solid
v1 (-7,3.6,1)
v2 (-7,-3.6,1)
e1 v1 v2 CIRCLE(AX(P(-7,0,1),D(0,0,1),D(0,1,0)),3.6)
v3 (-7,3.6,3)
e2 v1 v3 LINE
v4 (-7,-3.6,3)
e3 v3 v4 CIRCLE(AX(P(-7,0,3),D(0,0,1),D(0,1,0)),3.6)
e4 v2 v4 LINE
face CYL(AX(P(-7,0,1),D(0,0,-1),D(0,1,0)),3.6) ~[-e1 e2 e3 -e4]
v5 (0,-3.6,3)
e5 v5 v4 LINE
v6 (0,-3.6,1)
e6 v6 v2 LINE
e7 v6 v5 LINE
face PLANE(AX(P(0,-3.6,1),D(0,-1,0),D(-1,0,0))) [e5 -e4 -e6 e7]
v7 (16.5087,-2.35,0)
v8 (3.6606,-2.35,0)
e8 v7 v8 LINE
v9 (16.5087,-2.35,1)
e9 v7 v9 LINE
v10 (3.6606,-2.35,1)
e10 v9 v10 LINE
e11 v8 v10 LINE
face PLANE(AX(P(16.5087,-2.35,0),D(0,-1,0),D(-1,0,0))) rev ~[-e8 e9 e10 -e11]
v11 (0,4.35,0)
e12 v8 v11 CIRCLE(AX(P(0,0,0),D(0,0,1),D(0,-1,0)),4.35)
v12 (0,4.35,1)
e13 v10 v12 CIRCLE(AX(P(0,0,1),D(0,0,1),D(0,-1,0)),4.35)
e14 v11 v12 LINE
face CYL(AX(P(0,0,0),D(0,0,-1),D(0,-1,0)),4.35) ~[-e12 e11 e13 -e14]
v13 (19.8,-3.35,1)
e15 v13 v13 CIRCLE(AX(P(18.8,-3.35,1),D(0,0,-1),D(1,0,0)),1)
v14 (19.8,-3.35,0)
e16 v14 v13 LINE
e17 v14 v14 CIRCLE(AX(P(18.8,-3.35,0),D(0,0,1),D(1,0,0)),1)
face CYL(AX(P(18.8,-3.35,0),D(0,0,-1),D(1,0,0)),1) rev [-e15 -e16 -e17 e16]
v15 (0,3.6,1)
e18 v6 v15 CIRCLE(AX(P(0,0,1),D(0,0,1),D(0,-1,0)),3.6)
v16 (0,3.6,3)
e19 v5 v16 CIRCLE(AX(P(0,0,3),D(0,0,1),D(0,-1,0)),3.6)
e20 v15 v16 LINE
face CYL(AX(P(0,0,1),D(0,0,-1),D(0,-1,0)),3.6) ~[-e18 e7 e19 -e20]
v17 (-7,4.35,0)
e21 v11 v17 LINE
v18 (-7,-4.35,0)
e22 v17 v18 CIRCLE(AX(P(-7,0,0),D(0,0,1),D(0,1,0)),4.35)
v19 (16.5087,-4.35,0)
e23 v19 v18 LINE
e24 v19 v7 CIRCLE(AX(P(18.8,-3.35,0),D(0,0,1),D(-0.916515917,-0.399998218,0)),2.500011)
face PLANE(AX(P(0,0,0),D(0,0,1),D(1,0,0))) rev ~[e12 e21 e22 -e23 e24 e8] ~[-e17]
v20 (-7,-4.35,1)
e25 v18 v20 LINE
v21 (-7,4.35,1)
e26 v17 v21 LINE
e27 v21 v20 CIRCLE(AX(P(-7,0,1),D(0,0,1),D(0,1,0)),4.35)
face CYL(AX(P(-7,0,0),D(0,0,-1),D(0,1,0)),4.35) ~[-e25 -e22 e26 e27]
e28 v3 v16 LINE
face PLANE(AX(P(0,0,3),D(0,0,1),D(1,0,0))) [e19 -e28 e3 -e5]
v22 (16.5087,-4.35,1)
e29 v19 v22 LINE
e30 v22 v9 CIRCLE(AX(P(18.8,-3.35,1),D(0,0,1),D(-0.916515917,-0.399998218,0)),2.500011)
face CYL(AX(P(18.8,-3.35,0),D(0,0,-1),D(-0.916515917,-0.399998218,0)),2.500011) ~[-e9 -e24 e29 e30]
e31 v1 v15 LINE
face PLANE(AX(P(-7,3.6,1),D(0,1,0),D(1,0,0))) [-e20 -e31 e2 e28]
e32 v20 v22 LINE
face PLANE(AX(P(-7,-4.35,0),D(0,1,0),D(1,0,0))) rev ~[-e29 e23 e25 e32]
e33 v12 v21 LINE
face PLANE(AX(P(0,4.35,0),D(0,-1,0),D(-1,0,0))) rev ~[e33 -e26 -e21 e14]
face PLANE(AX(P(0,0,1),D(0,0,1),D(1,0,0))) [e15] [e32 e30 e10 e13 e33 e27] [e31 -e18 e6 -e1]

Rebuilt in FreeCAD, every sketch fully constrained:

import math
import FreeCAD as App
import Part
import Sketcher
Q = App.Units.Quantity

doc = App.newDocument("Part")
body = doc.addObject("PartDesign::Body", "Body")

# Sketch on XY plane
sketch1 = body.newObject("Sketcher::SketchObject", "Sketch")
sketch1.AttachmentSupport = (doc.getObject("XY_Plane"), [""])
sketch1.MapMode = "FlatFace"
sketch1.addGeometry([
    Part.ArcOfCircle(Part.Circle(App.Vector(0, 0, 0), App.Vector(0, 0, 1), 4.3), math.radians(-33), math.radians(90)),  # 0
    Part.LineSegment(App.Vector(0, 4.3, 0), App.Vector(-7, 4.3, 0)),  # 1
    Part.ArcOfCircle(Part.Circle(App.Vector(-7, 0, 0), App.Vector(0, 0, 1), 4.3), math.radians(90), math.radians(270)),  # 2
    Part.LineSegment(App.Vector(-7, -4.3, 0), App.Vector(16.5, -4.3, 0)),  # 3
    Part.ArcOfCircle(Part.Circle(App.Vector(18.8, -3.4, 0), App.Vector(0, 0, 1), 2.5), math.radians(-156), math.radians(156)),  # 4
    Part.LineSegment(App.Vector(16.5, -2.4, 0), App.Vector(3.7, -2.4, 0)),  # 5
    Part.Circle(App.Vector(18.8, -3.4, 0), App.Vector(0, 0, 1), 1),  # 6
], False)
sketch1.addConstraint([
    Sketcher.Constraint("Tangent", 0, 2, 1, 1),
    Sketcher.Constraint("Tangent", 1, 2, 2, 1),
    Sketcher.Constraint("Tangent", 2, 2, 3, 1),
    Sketcher.Constraint("Coincident", 3, 2, 4, 1),
    Sketcher.Constraint("Coincident", 4, 2, 5, 1),
    Sketcher.Constraint("Coincident", 5, 2, 0, 1),
    Sketcher.Constraint("Horizontal", 1),
    Sketcher.Constraint("Horizontal", 3),
    Sketcher.Constraint("Horizontal", 5),
    Sketcher.Constraint("Coincident", 0, 3, -1, 1),
    Sketcher.Constraint("Coincident", 6, 3, 4, 3),
    Sketcher.Constraint("Equal", 0, 2),
    Sketcher.Constraint("Vertical", 3, 2, 4, 2),
    Sketcher.Constraint("Diameter", 6, Q("2 mm")),
    Sketcher.Constraint("Radius", 4, Q("2.5 mm")),
    Sketcher.Constraint("DistanceX", 1, 2, 1, 1, Q("7 mm")),
    Sketcher.Constraint("Radius", 0, Q("4.35 mm")),
    Sketcher.Constraint("DistanceY", 2, 2, 4, 3, Q("1 mm")),
    Sketcher.Constraint("DistanceX", -1, 1, 4, 3, Q("18.8 mm")),
])
pad1 = body.newObject("PartDesign::Pad", "Pad")
pad1.Profile = sketch1
pad1.Length = 1

# Sketch on XY plane
sketch2 = body.newObject("Sketcher::SketchObject", "Sketch001")
sketch2.AttachmentSupport = (doc.getObject("XY_Plane"), [""])
sketch2.MapMode = "FlatFace"
sketch2.AttachmentOffset = App.Placement(App.Vector(0, 0, 1), App.Rotation())
sketch2.addGeometry([
    Part.LineSegment(App.Vector(0, 3.6, 0), App.Vector(-7, 3.6, 0)),
    Part.ArcOfCircle(Part.Circle(App.Vector(-7, 0, 0), App.Vector(0, 0, 1), 3.6), math.radians(90), math.radians(270)),
    Part.LineSegment(App.Vector(-7, -3.6, 0), App.Vector(0, -3.6, 0)),
    Part.ArcOfCircle(Part.Circle(App.Vector(0, 0, 0), App.Vector(0, 0, 1), 3.6), math.radians(-90), math.radians(90)),
], False)
sketch2.addConstraint([
    Sketcher.Constraint("Tangent", 0, 2, 1, 1),
    Sketcher.Constraint("Tangent", 1, 2, 2, 1),
    Sketcher.Constraint("Tangent", 2, 2, 3, 1),
    Sketcher.Constraint("Tangent", 3, 2, 0, 1),
    Sketcher.Constraint("Horizontal", 0),
    Sketcher.Constraint("Horizontal", 2),
    Sketcher.Constraint("Coincident", 3, 3, -1, 1),
    Sketcher.Constraint("Radius", 1, Q("3.6 mm")),
    Sketcher.Constraint("DistanceX", 0, 2, 0, 1, Q("7 mm")),
])
pad2 = body.newObject("PartDesign::Pad", "Pad001")
pad2.Profile = sketch2
pad2.Length = 2

doc.recompute()
